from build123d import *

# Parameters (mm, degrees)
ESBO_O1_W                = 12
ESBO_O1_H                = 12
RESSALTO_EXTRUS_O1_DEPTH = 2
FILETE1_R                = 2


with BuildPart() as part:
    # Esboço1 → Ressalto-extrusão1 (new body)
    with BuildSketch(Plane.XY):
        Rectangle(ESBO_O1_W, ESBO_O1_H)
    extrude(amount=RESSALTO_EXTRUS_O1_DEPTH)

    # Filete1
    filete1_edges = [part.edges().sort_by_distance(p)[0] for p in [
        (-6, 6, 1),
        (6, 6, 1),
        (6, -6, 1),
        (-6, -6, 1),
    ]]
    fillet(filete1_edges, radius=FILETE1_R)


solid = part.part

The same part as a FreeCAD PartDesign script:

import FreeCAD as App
import Part
import Sketcher
Q = App.Units.Quantity


def edges_at(feature, points):
    """Names of the edges that pass closest to the given points."""
    edges = feature.Shape.Edges
    near = lambda p: min(range(len(edges)), key=lambda i: edges[i].distToShape(Part.Vertex(*p))[0])
    return sorted({f"Edge{near(p) + 1}" for p in points})


def add_polygon(sketch, points):
    """Adds a closed chain of lines whose ends are joined by coincident constraints."""
    first, n = sketch.GeometryCount, len(points)
    for a, b in zip(points, points[1:] + points[:1]):
        sketch.addGeometry(Part.LineSegment(App.Vector(*a, 0), App.Vector(*b, 0)), False)
    for i in range(n):
        sketch.addConstraint(Sketcher.Constraint("Coincident", first + i, 2, first + (i + 1) % n, 1))

doc = App.newDocument("Part")
body = doc.addObject("PartDesign::Body", "Body")

# Sketch on XY plane
sketch1 = body.newObject("Sketcher::SketchObject", "Sketch")
sketch1.AttachmentSupport = (doc.getObject("XY_Plane"), [""])
sketch1.MapMode = "FlatFace"
add_polygon(sketch1, [(-6, 6), (-6, -6), (6, -6), (6, 6)])  # lines 0-3
sketch1.addConstraint(Sketcher.Constraint("Vertical", 0))
sketch1.addConstraint(Sketcher.Constraint("Horizontal", 1))
sketch1.addConstraint(Sketcher.Constraint("Vertical", 2))
sketch1.addConstraint(Sketcher.Constraint("Horizontal", 3))
sketch1.addConstraint(Sketcher.Constraint("Symmetric", 0, 2, 2, 2, -1, 1))
sketch1.addConstraint(Sketcher.Constraint("Equal", 3, 0))
sketch1.addConstraint(Sketcher.Constraint("DistanceX", 1, 1, 1, 2, Q("12 mm")))
pad1 = body.newObject("PartDesign::Pad", "Pad")
pad1.Profile = sketch1
pad1.Length = 2
doc.recompute()

fillet = body.newObject("PartDesign::Fillet", "Fillet")
fillet.Base = (pad1, edges_at(pad1, [
    (-6, 6, 1),
    (6, 6, 1),
    (6, -6, 1),
    (-6, -6, 1),
]))
fillet.Radius = 2

doc.recompute()
